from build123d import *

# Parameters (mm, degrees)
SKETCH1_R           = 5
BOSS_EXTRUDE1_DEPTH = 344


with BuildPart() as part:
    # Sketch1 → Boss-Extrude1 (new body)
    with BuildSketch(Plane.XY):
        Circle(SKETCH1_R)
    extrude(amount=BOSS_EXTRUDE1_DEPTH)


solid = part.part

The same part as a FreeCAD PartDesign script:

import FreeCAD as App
import Part
import Sketcher
Q = App.Units.Quantity

doc = App.newDocument("Part")
body = doc.addObject("PartDesign::Body", "Body")

# Sketch on XY plane
sketch1 = body.newObject("Sketcher::SketchObject", "Sketch")
sketch1.AttachmentSupport = (doc.getObject("XY_Plane"), [""])
sketch1.MapMode = "FlatFace"
sketch1.addGeometry(Part.Circle(App.Vector(0, 0, 0), App.Vector(0, 0, 1), 5), False)
sketch1.addConstraint([
    Sketcher.Constraint("Coincident", 0, 3, -1, 1),
    Sketcher.Constraint("Diameter", 0, Q("10 mm")),
])
pad1 = body.newObject("PartDesign::Pad", "Pad")
pad1.Profile = sketch1
pad1.Length = 344

doc.recompute()
